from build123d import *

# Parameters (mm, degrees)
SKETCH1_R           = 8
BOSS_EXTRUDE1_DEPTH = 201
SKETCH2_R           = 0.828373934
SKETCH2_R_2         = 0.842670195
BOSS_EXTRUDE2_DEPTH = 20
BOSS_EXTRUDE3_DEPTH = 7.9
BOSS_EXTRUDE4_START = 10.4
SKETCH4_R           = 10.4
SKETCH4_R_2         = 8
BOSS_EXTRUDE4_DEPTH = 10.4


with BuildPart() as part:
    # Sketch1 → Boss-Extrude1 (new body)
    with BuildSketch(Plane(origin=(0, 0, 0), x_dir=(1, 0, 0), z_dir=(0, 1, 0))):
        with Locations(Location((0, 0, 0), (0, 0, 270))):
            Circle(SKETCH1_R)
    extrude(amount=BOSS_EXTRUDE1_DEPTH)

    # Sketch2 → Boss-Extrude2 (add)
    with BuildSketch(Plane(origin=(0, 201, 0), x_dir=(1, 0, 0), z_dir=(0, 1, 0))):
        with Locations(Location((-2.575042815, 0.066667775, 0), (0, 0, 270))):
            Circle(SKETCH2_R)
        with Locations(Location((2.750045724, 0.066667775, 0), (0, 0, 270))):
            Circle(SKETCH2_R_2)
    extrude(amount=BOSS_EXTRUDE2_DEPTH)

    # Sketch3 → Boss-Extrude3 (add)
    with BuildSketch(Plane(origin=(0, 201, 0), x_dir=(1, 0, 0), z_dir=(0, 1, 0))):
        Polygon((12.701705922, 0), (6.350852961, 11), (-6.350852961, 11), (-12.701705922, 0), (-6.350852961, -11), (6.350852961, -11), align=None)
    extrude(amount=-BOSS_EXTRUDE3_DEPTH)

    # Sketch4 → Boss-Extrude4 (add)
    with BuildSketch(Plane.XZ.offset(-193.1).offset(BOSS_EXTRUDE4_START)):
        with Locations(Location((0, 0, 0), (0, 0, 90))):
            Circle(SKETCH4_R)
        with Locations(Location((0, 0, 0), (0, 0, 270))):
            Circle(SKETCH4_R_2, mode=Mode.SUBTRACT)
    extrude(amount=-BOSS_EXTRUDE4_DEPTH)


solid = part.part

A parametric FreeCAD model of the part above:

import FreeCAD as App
import Part
import Sketcher
Q = App.Units.Quantity

doc = App.newDocument("Part")
params = doc.addObject("Spreadsheet::Sheet", "Params")
for row, (alias, value) in enumerate([
    ("sketch1_diameter", "16 mm"),
    ("pad1_length", "201 mm"),
    ("pad2_length", "20 mm"),
    ("pad3_length", "7.9 mm"),
    ("sketch4_diameter", "16 mm"),
    ("sketch4_diameter2", "20.8 mm"),
    ("pad4_length", "10.4 mm"),
], start=1):
    params.set(f"A{row}", alias)
    params.set(f"B{row}", "=" + value)
    params.setAlias(f"B{row}", alias)

body = doc.addObject("PartDesign::Body", "Body")

# Sketch on XZ plane
sketch1 = body.newObject("Sketcher::SketchObject", "Sketch")
sketch1.AttachmentSupport = (doc.getObject("XZ_Plane"), [""])
sketch1.MapMode = "FlatFace"
sketch1.addGeometry(Part.Circle(App.Vector(0, 0, 0), App.Vector(0, 0, 1), 8), False)
sketch1.addConstraint(Sketcher.Constraint("Coincident", 0, 3, -1, 1))
sketch1.addConstraint(Sketcher.Constraint("Diameter", 0, Q("16 mm")))
sketch1.setExpression("Constraints[1]", "Params.sketch1_diameter")
pad1 = body.newObject("PartDesign::Pad", "Pad")
pad1.Profile = sketch1
pad1.setExpression("Length", "Params.pad1_length")
pad1.Reversed = True

# Sketch on XZ plane
sketch2 = body.newObject("Sketcher::SketchObject", "Sketch001")
sketch2.AttachmentSupport = (doc.getObject("XZ_Plane"), [""])
sketch2.MapMode = "FlatFace"
sketch2.AttachmentOffset = App.Placement(App.Vector(0, 0, -201), App.Rotation())
sketch2.addGeometry(Part.Circle(App.Vector(-2.6, -0.1, 0), App.Vector(0, 0, 1), 0.8), False)
sketch2.addGeometry(Part.Circle(App.Vector(2.8, -0.1, 0), App.Vector(0, 0, 1), 0.8), False)
sketch2.addConstraint(Sketcher.Constraint("Horizontal", 0, 3, 1, 3))
sketch2.addConstraint(Sketcher.Constraint("Diameter", 1, Q("1.68534 mm")))
sketch2.addConstraint(Sketcher.Constraint("Diameter", 0, Q("1.656748 mm")))
sketch2.addConstraint(Sketcher.Constraint("DistanceX", 0, 3, 1, 3, Q("5.325089 mm")))
sketch2.addConstraint(Sketcher.Constraint("DistanceX", 0, 3, -1, 1, Q("2.575043 mm")))
sketch2.addConstraint(Sketcher.Constraint("DistanceY", 0, 3, -1, 1, Q("0.066668 mm")))
pad2 = body.newObject("PartDesign::Pad", "Pad001")
pad2.Profile = sketch2
pad2.setExpression("Length", "Params.pad2_length")
pad2.Reversed = True

# Sketch on XZ plane
sketch3 = body.newObject("Sketcher::SketchObject", "Sketch002")
sketch3.AttachmentSupport = (doc.getObject("XZ_Plane"), [""])
sketch3.MapMode = "FlatFace"
sketch3.AttachmentOffset = App.Placement(App.Vector(0, 0, -201), App.Rotation())
sketch3.addGeometry(Part.LineSegment(App.Vector(13, 0, 0), App.Vector(6, -11, 0)), False)
sketch3.addGeometry(Part.LineSegment(App.Vector(6, -11, 0), App.Vector(-6, -11, 0)), False)
sketch3.addGeometry(Part.LineSegment(App.Vector(-6, -11, 0), App.Vector(-13, 0, 0)), False)
sketch3.addGeometry(Part.LineSegment(App.Vector(-13, 0, 0), App.Vector(-6, 11, 0)), False)
sketch3.addGeometry(Part.LineSegment(App.Vector(-6, 11, 0), App.Vector(6, 11, 0)), False)
sketch3.addGeometry(Part.LineSegment(App.Vector(6, 11, 0), App.Vector(13, 0, 0)), False)
sketch3.addConstraint(Sketcher.Constraint("Coincident", 0, 2, 1, 1))
sketch3.addConstraint(Sketcher.Constraint("Coincident", 1, 2, 2, 1))
sketch3.addConstraint(Sketcher.Constraint("Coincident", 2, 2, 3, 1))
sketch3.addConstraint(Sketcher.Constraint("Coincident", 3, 2, 4, 1))
sketch3.addConstraint(Sketcher.Constraint("Coincident", 4, 2, 5, 1))
sketch3.addConstraint(Sketcher.Constraint("Coincident", 5, 2, 0, 1))
sketch3.addConstraint(Sketcher.Constraint("Horizontal", 1))
sketch3.addConstraint(Sketcher.Constraint("Horizontal", 4))
sketch3.addConstraint(Sketcher.Constraint("Symmetric", 0, 2, 3, 2, -1, 1))
sketch3.addConstraint(Sketcher.Constraint("Symmetric", 2, 2, 5, 2, -1, 1))
sketch3.addConstraint(Sketcher.Constraint("PointOnObject", 2, 2, -1))
sketch3.addConstraint(Sketcher.Constraint("Parallel", 2, 5))
sketch3.addConstraint(Sketcher.Constraint("Vertical", 1, 2, 3, 2))
sketch3.addConstraint(Sketcher.Constraint("Angle", 0, Q("-120 deg")))
sketch3.addConstraint(Sketcher.Constraint("DistanceY", 0, 2, -1, 1, Q("11 mm")))
sketch3.addConstraint(Sketcher.Constraint("DistanceX", 1, 2, 1, 1, Q("12.701706 mm")))
pad3 = body.newObject("PartDesign::Pad", "Pad002")
pad3.Profile = sketch3
pad3.setExpression("Length", "Params.pad3_length")

# Sketch on XZ plane
sketch4 = body.newObject("Sketcher::SketchObject", "Sketch003")
sketch4.AttachmentSupport = (doc.getObject("XZ_Plane"), [""])
sketch4.MapMode = "FlatFace"
sketch4.AttachmentOffset = App.Placement(App.Vector(0, 0, -182.7), App.Rotation())
sketch4.addGeometry(Part.Circle(App.Vector(0, 0, 0), App.Vector(0, 0, 1), 10), False)
sketch4.addGeometry(Part.Circle(App.Vector(0, 0, 0), App.Vector(0, 0, 1), 8), False)
sketch4.addConstraint(Sketcher.Constraint("Coincident", 0, 3, -1, 1))
sketch4.addConstraint(Sketcher.Constraint("Coincident", 1, 3, -1, 1))
sketch4.addConstraint(Sketcher.Constraint("Diameter", 1, Q("16 mm")))
sketch4.addConstraint(Sketcher.Constraint("Diameter", 0, Q("20.8 mm")))
sketch4.setExpression("Constraints[2]", "Params.sketch4_diameter")
sketch4.setExpression("Constraints[3]", "Params.sketch4_diameter2")
pad4 = body.newObject("PartDesign::Pad", "Pad003")
pad4.Profile = sketch4
pad4.setExpression("Length", "Params.pad4_length")
pad4.Reversed = True

doc.recompute()
